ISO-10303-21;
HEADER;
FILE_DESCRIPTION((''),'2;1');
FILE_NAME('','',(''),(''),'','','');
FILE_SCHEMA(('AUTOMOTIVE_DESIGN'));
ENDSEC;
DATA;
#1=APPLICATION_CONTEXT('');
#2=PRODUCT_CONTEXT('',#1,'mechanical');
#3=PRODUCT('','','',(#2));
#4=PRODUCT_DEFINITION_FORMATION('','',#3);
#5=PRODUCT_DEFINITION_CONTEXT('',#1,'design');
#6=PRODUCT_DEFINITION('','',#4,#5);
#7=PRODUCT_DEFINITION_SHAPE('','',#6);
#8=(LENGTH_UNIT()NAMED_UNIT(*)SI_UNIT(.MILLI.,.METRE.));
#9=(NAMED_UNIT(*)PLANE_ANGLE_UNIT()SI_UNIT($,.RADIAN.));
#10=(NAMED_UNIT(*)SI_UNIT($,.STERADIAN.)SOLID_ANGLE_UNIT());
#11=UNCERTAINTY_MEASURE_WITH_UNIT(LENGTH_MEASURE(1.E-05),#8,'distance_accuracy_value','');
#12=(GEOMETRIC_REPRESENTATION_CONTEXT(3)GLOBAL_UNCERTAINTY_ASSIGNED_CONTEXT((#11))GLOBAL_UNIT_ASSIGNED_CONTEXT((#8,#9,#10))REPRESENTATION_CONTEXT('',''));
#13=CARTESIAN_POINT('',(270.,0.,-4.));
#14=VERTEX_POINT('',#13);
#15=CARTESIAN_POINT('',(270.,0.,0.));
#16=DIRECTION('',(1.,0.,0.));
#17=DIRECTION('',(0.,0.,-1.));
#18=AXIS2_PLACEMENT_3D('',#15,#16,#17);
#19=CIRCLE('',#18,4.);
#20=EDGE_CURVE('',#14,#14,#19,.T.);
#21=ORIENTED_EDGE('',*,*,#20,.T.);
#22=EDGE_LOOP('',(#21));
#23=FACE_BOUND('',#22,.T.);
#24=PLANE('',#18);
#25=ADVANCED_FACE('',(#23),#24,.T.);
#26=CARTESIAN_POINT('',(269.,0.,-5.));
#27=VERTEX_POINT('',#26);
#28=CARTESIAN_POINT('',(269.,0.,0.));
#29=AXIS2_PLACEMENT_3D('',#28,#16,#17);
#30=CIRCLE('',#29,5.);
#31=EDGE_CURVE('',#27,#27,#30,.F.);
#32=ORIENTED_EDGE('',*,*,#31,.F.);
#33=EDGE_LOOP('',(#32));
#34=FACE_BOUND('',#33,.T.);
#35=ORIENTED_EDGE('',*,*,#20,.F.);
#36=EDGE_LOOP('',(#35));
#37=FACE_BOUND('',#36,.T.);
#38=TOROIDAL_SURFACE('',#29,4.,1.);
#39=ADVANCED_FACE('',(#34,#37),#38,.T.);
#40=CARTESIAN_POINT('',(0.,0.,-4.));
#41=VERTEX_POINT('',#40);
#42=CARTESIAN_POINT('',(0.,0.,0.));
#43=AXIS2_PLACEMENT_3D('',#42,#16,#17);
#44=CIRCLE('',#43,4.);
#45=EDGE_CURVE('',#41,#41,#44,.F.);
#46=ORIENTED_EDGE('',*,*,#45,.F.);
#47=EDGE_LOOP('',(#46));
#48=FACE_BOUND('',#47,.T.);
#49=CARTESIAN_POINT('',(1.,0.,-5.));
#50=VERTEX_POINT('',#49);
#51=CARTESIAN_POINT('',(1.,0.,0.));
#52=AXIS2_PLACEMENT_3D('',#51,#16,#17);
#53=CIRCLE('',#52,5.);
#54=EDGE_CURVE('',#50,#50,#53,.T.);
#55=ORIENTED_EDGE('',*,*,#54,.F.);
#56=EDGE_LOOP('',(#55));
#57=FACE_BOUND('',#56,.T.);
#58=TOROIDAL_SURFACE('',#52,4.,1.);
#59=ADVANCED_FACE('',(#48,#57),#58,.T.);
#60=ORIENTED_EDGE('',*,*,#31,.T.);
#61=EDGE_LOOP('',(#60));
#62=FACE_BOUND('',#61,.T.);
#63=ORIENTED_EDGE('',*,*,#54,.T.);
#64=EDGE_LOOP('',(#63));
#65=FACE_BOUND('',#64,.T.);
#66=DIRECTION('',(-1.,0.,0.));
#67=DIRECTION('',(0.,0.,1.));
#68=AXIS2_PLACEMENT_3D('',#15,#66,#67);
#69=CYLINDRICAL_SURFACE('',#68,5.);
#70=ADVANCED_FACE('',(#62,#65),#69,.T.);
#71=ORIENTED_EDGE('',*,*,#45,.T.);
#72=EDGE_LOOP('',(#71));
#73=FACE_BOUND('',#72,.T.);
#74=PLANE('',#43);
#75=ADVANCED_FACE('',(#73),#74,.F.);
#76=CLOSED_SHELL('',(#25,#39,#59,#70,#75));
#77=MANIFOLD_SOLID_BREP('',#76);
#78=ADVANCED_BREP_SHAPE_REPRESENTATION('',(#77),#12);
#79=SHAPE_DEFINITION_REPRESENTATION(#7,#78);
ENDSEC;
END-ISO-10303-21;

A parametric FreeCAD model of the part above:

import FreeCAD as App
import Part
import Sketcher
Q = App.Units.Quantity


def edges_at(feature, points):
    """Names of the edges that pass closest to the given points."""
    edges = feature.Shape.Edges
    near = lambda p: min(range(len(edges)), key=lambda i: edges[i].distToShape(Part.Vertex(*p))[0])
    return sorted({f"Edge{near(p) + 1}" for p in points})

doc = App.newDocument("Part")
params = doc.addObject("Spreadsheet::Sheet", "Params")
for row, (alias, value) in enumerate([
    ("sketch1_diameter", "10 mm"),
    ("pad1_length", "270 mm"),
    ("fillet_radius", "1 mm"),
], start=1):
    params.set(f"A{row}", alias)
    params.set(f"B{row}", "=" + value)
    params.setAlias(f"B{row}", alias)

body = doc.addObject("PartDesign::Body", "Body")

# Sketch on YZ plane
sketch1 = doc.addObject("Sketcher::SketchObject", "Sketch")
body.addObject(sketch1)
sketch1.AttachmentSupport = (doc.YZ_Plane, [""])
sketch1.MapMode = "FlatFace"
sketch1.addGeometry(Part.Circle(App.Vector(0, 0, 0), App.Vector(0, 0, 1), 5), False)
sketch1.addConstraint(Sketcher.Constraint("Coincident", 0, 3, -1, 1))
sketch1.addConstraint(Sketcher.Constraint("Diameter", 0, Q("10 mm")))
sketch1.setExpression("Constraints[1]", "Params.sketch1_diameter")
pad1 = doc.addObject("PartDesign::Pad", "Pad")
body.addObject(pad1)
pad1.Profile = sketch1
pad1.setExpression("Length", "Params.pad1_length")
doc.recompute()

fillet = doc.addObject("PartDesign::Fillet", "Fillet")
body.addObject(fillet)
fillet.Base = (pad1, edges_at(pad1, [(0, 0, 5), (270, 0, 5)]))
fillet.setExpression("Radius", "Params.fillet_radius")

doc.recompute()
